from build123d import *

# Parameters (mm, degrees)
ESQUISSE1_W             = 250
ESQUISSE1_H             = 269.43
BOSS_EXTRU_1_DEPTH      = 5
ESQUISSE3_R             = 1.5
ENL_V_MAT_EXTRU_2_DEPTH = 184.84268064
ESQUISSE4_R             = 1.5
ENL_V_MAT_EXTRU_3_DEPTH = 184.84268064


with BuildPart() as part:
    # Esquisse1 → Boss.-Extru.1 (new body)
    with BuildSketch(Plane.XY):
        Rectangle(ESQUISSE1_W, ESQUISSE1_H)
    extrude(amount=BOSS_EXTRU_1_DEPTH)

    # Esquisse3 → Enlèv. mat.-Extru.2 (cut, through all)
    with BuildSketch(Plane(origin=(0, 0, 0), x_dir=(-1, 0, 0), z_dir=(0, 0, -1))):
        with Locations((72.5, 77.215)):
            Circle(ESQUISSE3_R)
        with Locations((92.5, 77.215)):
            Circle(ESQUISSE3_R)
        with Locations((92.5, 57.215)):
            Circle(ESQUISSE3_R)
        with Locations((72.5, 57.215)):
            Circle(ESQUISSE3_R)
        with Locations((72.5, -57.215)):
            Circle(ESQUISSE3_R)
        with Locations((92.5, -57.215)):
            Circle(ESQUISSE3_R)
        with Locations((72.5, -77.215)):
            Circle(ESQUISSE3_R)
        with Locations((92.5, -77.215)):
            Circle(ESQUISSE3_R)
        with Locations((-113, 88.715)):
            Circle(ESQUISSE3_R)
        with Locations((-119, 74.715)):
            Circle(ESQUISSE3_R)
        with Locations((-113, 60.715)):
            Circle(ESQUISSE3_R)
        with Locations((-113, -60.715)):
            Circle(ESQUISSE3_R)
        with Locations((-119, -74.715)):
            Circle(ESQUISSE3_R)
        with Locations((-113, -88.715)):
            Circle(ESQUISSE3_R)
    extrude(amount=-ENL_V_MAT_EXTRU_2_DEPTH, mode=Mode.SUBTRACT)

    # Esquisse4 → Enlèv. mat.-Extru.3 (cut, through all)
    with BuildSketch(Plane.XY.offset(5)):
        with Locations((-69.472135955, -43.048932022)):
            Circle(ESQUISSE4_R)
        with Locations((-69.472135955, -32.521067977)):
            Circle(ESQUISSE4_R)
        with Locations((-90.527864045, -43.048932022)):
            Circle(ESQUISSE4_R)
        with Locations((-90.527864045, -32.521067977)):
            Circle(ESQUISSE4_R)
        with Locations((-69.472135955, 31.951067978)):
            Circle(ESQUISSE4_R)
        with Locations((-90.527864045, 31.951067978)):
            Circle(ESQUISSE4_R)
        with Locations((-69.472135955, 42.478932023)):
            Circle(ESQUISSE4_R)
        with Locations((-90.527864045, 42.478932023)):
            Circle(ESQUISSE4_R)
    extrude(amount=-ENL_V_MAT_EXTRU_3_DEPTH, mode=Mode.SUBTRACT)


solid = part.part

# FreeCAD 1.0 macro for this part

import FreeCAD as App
import Part
import Sketcher
from FreeCAD import Vector

doc = App.newDocument("Part")
params = doc.addObject("Spreadsheet::Sheet", "Params")
for row, (alias, value) in enumerate([
    ("sketch1_width", "250 mm"),
    ("sketch1_height", "269.43 mm"),
    ("pad1_length", "5 mm"),
    ("sketch2_diameter", "3 mm"),
    ("sketch3_diameter", "3 mm"),
], start=1):
    params.set(f"A{row}", alias)
    params.set(f"B{row}", "=" + value)
    params.setAlias(f"B{row}", alias)

body = doc.addObject("PartDesign::Body", "Body")

# Sketch on XY plane
sketch1 = body.newObject("Sketcher::SketchObject", "Sketch")
sketch1.AttachmentSupport = (doc.getObject("XY_Plane"), [""])
sketch1.MapMode = "FlatFace"
sketch1.addGeometry(Part.LineSegment(Vector(-125, 135, 0), Vector(-125, -135, 0)), False)
sketch1.addGeometry(Part.LineSegment(Vector(-125, -135, 0), Vector(125, -135, 0)), False)
sketch1.addGeometry(Part.LineSegment(Vector(125, -135, 0), Vector(125, 135, 0)), False)
sketch1.addGeometry(Part.LineSegment(Vector(125, 135, 0), Vector(-125, 135, 0)), False)
sketch1.addConstraint(Sketcher.Constraint("Coincident", 0, 2, 1, 1))
sketch1.addConstraint(Sketcher.Constraint("Coincident", 1, 2, 2, 1))
sketch1.addConstraint(Sketcher.Constraint("Coincident", 2, 2, 3, 1))
sketch1.addConstraint(Sketcher.Constraint("Coincident", 3, 2, 0, 1))
sketch1.addConstraint(Sketcher.Constraint("Vertical", 0))
sketch1.addConstraint(Sketcher.Constraint("Horizontal", 1))
sketch1.addConstraint(Sketcher.Constraint("Vertical", 2))
sketch1.addConstraint(Sketcher.Constraint("Horizontal", 3))
sketch1.addConstraint(Sketcher.Constraint("Symmetric", 0, 2, 2, 2, -1, 1))
sketch1.addConstraint(Sketcher.Constraint("DistanceX", 1, 1, 1, 2, 250.0))
sketch1.addConstraint(Sketcher.Constraint("DistanceY", 0, 2, 0, 1, 269.43))
sketch1.setExpression("Constraints[9]", "Params.sketch1_width")
sketch1.setExpression("Constraints[10]", "Params.sketch1_height")
pad1 = body.newObject("PartDesign::Pad", "Pad")
pad1.Profile = sketch1
pad1.setExpression("Length", "Params.pad1_length")

# Sketch on XY plane
sketch2 = body.newObject("Sketcher::SketchObject", "Sketch001")
sketch2.AttachmentSupport = (doc.getObject("XY_Plane"), [""])
sketch2.MapMode = "FlatFace"
sketch2.addGeometry(Part.Circle(Vector(-72.5, 77.2, 0), Vector(0, 0, 1), 1.5), False)
sketch2.addGeometry(Part.Circle(Vector(-92.5, 77.2, 0), Vector(0, 0, 1), 1.5), False)
sketch2.addGeometry(Part.Circle(Vector(-92.5, 57.2, 0), Vector(0, 0, 1), 1.5), False)
sketch2.addGeometry(Part.Circle(Vector(-72.5, 57.2, 0), Vector(0, 0, 1), 1.5), False)
sketch2.addGeometry(Part.Circle(Vector(-72.5, -57.2, 0), Vector(0, 0, 1), 1.5), False)
sketch2.addGeometry(Part.Circle(Vector(-92.5, -57.2, 0), Vector(0, 0, 1), 1.5), False)
sketch2.addGeometry(Part.Circle(Vector(-72.5, -77.2, 0), Vector(0, 0, 1), 1.5), False)
sketch2.addGeometry(Part.Circle(Vector(-92.5, -77.2, 0), Vector(0, 0, 1), 1.5), False)
sketch2.addGeometry(Part.Circle(Vector(113, 88.7, 0), Vector(0, 0, 1), 1.5), False)
sketch2.addGeometry(Part.Circle(Vector(119, 74.7, 0), Vector(0, 0, 1), 1.5), False)
sketch2.addGeometry(Part.Circle(Vector(113, 60.7, 0), Vector(0, 0, 1), 1.5), False)
sketch2.addGeometry(Part.Circle(Vector(113, -60.7, 0), Vector(0, 0, 1), 1.5), False)
sketch2.addGeometry(Part.Circle(Vector(119, -74.7, 0), Vector(0, 0, 1), 1.5), False)
sketch2.addGeometry(Part.Circle(Vector(113, -88.7, 0), Vector(0, 0, 1), 1.5), False)
sketch2.addConstraint(Sketcher.Constraint("Equal", 0, 1))
sketch2.addConstraint(Sketcher.Constraint("Equal", 1, 2))
sketch2.addConstraint(Sketcher.Constraint("Equal", 2, 3))
sketch2.addConstraint(Sketcher.Constraint("Equal", 3, 4))
sketch2.addConstraint(Sketcher.Constraint("Equal", 4, 5))
sketch2.addConstraint(Sketcher.Constraint("Equal", 5, 6))
sketch2.addConstraint(Sketcher.Constraint("Equal", 6, 7))
sketch2.addConstraint(Sketcher.Constraint("Equal", 7, 8))
sketch2.addConstraint(Sketcher.Constraint("Equal", 8, 9))
sketch2.addConstraint(Sketcher.Constraint("Equal", 9, 10))
sketch2.addConstraint(Sketcher.Constraint("Equal", 10, 11))
sketch2.addConstraint(Sketcher.Constraint("Equal", 11, 12))
sketch2.addConstraint(Sketcher.Constraint("Equal", 12, 13))
sketch2.addConstraint(Sketcher.Constraint("Symmetric", 3, 3, 4, 3, -1))
sketch2.addConstraint(Sketcher.Constraint("Symmetric", 2, 3, 5, 3, -1))
sketch2.addConstraint(Sketcher.Constraint("Symmetric", 0, 3, 6, 3, -1))
sketch2.addConstraint(Sketcher.Constraint("Symmetric", 1, 3, 7, 3, -1))
sketch2.addConstraint(Sketcher.Constraint("Symmetric", 10, 3, 11, 3, -1))
sketch2.addConstraint(Sketcher.Constraint("Symmetric", 9, 3, 12, 3, -1))
sketch2.addConstraint(Sketcher.Constraint("Symmetric", 8, 3, 13, 3, -1))
sketch2.addConstraint(Sketcher.Constraint("Horizontal", 0, 3, 1, 3))
sketch2.addConstraint(Sketcher.Constraint("Horizontal", 2, 3, 3, 3))
sketch2.addConstraint(Sketcher.Constraint("Vertical", 1, 3, 2, 3))
sketch2.addConstraint(Sketcher.Constraint("Vertical", 0, 3, 3, 3))
sketch2.addConstraint(Sketcher.Constraint("Vertical", 8, 3, 10, 3))
sketch2.addConstraint(Sketcher.Constraint("Diameter", 0, 3.0))
sketch2.addConstraint(Sketcher.Constraint("DistanceX", -1, 1, 8, 3, 113.0))
sketch2.addConstraint(Sketcher.Constraint("DistanceX", -1, 1, 9, 3, 119.0))
sketch2.addConstraint(Sketcher.Constraint("DistanceX", 1, 3, 0, 3, 20.0))
sketch2.addConstraint(Sketcher.Constraint("DistanceY", 2, 3, 1, 3, 20.0))
sketch2.addConstraint(Sketcher.Constraint("DistanceY", 9, 3, 8, 3, 14.0))
sketch2.addConstraint(Sketcher.Constraint("DistanceY", 10, 3, 9, 3, 14.0))
sketch2.addConstraint(Sketcher.Constraint("DistanceX", 0, 3, -1, 1, 72.5))
sketch2.addConstraint(Sketcher.Constraint("DistanceY", 0, 3, 8, 3, 11.5))
sketch2.addConstraint(Sketcher.Constraint("DistanceY", 4, 3, 3, 3, 114.43))
sketch2.setExpression("Constraints[25]", "Params.sketch2_diameter")
pocket1 = body.newObject("PartDesign::Pocket", "Pocket")
pocket1.Profile = sketch2
pocket1.Type = "ThroughAll"
pocket1.Reversed = True

# Sketch on XY plane
sketch3 = body.newObject("Sketcher::SketchObject", "Sketch002")
sketch3.AttachmentSupport = (doc.getObject("XY_Plane"), [""])
sketch3.MapMode = "FlatFace"
sketch3.AttachmentOffset = App.Placement(Vector(0, 0, 5), App.Rotation())
sketch3.addGeometry(Part.Circle(Vector(-69.5, -43, 0), Vector(0, 0, 1), 1.5), False)
sketch3.addGeometry(Part.Circle(Vector(-69.5, -32.5, 0), Vector(0, 0, 1), 1.5), False)
sketch3.addGeometry(Part.Circle(Vector(-90.5, -43, 0), Vector(0, 0, 1), 1.5), False)
sketch3.addGeometry(Part.Circle(Vector(-90.5, -32.5, 0), Vector(0, 0, 1), 1.5), False)
sketch3.addGeometry(Part.Circle(Vector(-69.5, 32, 0), Vector(0, 0, 1), 1.5), False)
sketch3.addGeometry(Part.Circle(Vector(-90.5, 32, 0), Vector(0, 0, 1), 1.5), False)
sketch3.addGeometry(Part.Circle(Vector(-69.5, 42.5, 0), Vector(0, 0, 1), 1.5), False)
sketch3.addGeometry(Part.Circle(Vector(-90.5, 42.5, 0), Vector(0, 0, 1), 1.5), False)
sketch3.addConstraint(Sketcher.Constraint("Equal", 0, 1))
sketch3.addConstraint(Sketcher.Constraint("Equal", 1, 2))
sketch3.addConstraint(Sketcher.Constraint("Equal", 2, 3))
sketch3.addConstraint(Sketcher.Constraint("Equal", 3, 4))
sketch3.addConstraint(Sketcher.Constraint("Equal", 4, 5))
sketch3.addConstraint(Sketcher.Constraint("Equal", 5, 6))
sketch3.addConstraint(Sketcher.Constraint("Equal", 6, 7))
sketch3.addConstraint(Sketcher.Constraint("Horizontal", 0, 3, 2, 3))
sketch3.addConstraint(Sketcher.Constraint("Horizontal", 1, 3, 3, 3))
sketch3.addConstraint(Sketcher.Constraint("Horizontal", 4, 3, 5, 3))
sketch3.addConstraint(Sketcher.Constraint("Horizontal", 6, 3, 7, 3))
sketch3.addConstraint(Sketcher.Constraint("Vertical", 0, 3, 1, 3))
sketch3.addConstraint(Sketcher.Constraint("Vertical", 2, 3, 3, 3))
sketch3.addConstraint(Sketcher.Constraint("Vertical", 1, 3, 4, 3))
sketch3.addConstraint(Sketcher.Constraint("Vertical", 3, 3, 5, 3))
sketch3.addConstraint(Sketcher.Constraint("Vertical", 4, 3, 6, 3))
sketch3.addConstraint(Sketcher.Constraint("Vertical", 5, 3, 7, 3))
sketch3.addConstraint(Sketcher.Constraint("Diameter", 0, 3.0))
sketch3.addConstraint(Sketcher.Constraint("DistanceY", 0, 3, 4, 3, 75.0))
sketch3.addConstraint(Sketcher.Constraint("DistanceY", 1, 3, 6, 3, 75.0))
sketch3.addConstraint(Sketcher.Constraint("DistanceX", 2, 3, 0, 3, 21.055728))
sketch3.addConstraint(Sketcher.Constraint("DistanceX", 0, 3, -1, 1, 69.472136))
sketch3.addConstraint(Sketcher.Constraint("DistanceY", 0, 3, -1, 1, 43.048932))
sketch3.addConstraint(Sketcher.Constraint("DistanceY", 1, 3, -1, 1, 32.521068))
sketch3.setExpression("Constraints[17]", "Params.sketch3_diameter")
pocket2 = body.newObject("PartDesign::Pocket", "Pocket001")
pocket2.Profile = sketch3
pocket2.Type = "ThroughAll"

doc.recompute()
